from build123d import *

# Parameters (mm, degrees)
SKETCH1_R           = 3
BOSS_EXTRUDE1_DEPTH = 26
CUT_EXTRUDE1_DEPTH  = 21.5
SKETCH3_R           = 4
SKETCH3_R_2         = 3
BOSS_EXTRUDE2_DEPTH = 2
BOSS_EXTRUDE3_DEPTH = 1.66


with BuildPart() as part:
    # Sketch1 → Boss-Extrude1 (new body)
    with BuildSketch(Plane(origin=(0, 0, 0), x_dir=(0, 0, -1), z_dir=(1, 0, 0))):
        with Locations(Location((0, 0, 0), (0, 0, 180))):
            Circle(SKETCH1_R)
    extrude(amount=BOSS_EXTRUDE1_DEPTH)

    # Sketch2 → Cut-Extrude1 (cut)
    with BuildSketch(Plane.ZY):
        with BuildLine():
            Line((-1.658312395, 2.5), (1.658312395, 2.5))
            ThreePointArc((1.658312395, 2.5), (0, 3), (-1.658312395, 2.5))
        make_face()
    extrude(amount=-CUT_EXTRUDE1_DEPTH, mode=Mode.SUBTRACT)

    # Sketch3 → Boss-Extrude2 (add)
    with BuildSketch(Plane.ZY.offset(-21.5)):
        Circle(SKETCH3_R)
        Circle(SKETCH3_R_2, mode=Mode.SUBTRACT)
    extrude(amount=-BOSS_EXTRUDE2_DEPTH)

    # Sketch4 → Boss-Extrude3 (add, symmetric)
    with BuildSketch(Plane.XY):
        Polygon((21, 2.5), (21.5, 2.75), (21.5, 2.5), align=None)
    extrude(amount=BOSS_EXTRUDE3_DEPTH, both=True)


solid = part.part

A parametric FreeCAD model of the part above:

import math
import FreeCAD as App
import Part
import Sketcher

doc = App.newDocument("Part")
body = doc.addObject("PartDesign::Body", "Body")

# Sketch on YZ plane
sketch1 = body.newObject("Sketcher::SketchObject", "Sketch")
sketch1.AttachmentSupport = (doc.getObject("YZ_Plane"), [""])
sketch1.MapMode = "FlatFace"
sketch1.addGeometry(Part.Circle(App.Vector(0, 0, 0), App.Vector(0, 0, 1), 3), False)
sketch1.addConstraint([
    Sketcher.Constraint("Coincident", 0, 3, -1, 1),
    Sketcher.Constraint("Diameter", 0, 6.0),
])
pad1 = body.newObject("PartDesign::Pad", "Pad")
pad1.Profile = sketch1
pad1.Length = 26

# Sketch on YZ plane
sketch2 = body.newObject("Sketcher::SketchObject", "Sketch001")
sketch2.AttachmentSupport = (doc.getObject("YZ_Plane"), [""])
sketch2.MapMode = "FlatFace"
sketch2.addGeometry([
    Part.LineSegment(App.Vector(2.5, -1.658312, 0), App.Vector(2.5, 1.658312, 0)),
    Part.ArcOfCircle(Part.Circle(App.Vector(0, 0, 0), App.Vector(0, 0, 1), 3), math.radians(-33.55731), math.radians(33.55731)),
], False)
sketch2.addConstraint([
    Sketcher.Constraint("Coincident", 0, 1, 1, 1),
    Sketcher.Constraint("Coincident", 1, 2, 0, 2),
    Sketcher.Constraint("Vertical", 0),
    Sketcher.Constraint("Coincident", 1, 3, -1, 1),
    Sketcher.Constraint("Radius", 1, 3.0),
    Sketcher.Constraint("DistanceX", -1, 1, 0, 1, 2.5),
])
pocket1 = body.newObject("PartDesign::Pocket", "Pocket")
pocket1.Profile = sketch2
pocket1.Length = 21.5
pocket1.Reversed = True

# Sketch on YZ plane
sketch3 = body.newObject("Sketcher::SketchObject", "Sketch002")
sketch3.AttachmentSupport = (doc.getObject("YZ_Plane"), [""])
sketch3.MapMode = "FlatFace"
sketch3.AttachmentOffset = App.Placement(App.Vector(0, 0, 21.5), App.Rotation())
sketch3.addGeometry([
    Part.Circle(App.Vector(0, 0, 0), App.Vector(0, 0, 1), 4),
    Part.Circle(App.Vector(0, 0, 0), App.Vector(0, 0, 1), 3),
], False)
sketch3.addConstraint([
    Sketcher.Constraint("Coincident", 0, 3, -1, 1),
    Sketcher.Constraint("Coincident", 1, 3, -1, 1),
    Sketcher.Constraint("Diameter", 0, 8.0),
    Sketcher.Constraint("Diameter", 1, 6.0),
])
pad2 = body.newObject("PartDesign::Pad", "Pad001")
pad2.Profile = sketch3
pad2.Length = 2

# Sketch on XY plane
sketch4 = body.newObject("Sketcher::SketchObject", "Sketch003")
sketch4.AttachmentSupport = (doc.getObject("XY_Plane"), [""])
sketch4.MapMode = "FlatFace"
sketch4.addGeometry([
    Part.LineSegment(App.Vector(21.5, 2.75, 0), App.Vector(21, 2.5, 0)),
    Part.LineSegment(App.Vector(21, 2.5, 0), App.Vector(21.5, 2.5, 0)),
    Part.LineSegment(App.Vector(21.5, 2.5, 0), App.Vector(21.5, 2.75, 0)),
], False)
sketch4.addConstraint([
    Sketcher.Constraint("Coincident", 0, 2, 1, 1),
    Sketcher.Constraint("Coincident", 1, 2, 2, 1),
    Sketcher.Constraint("Coincident", 2, 2, 0, 1),
    Sketcher.Constraint("Horizontal", 1),
    Sketcher.Constraint("Vertical", 2),
    Sketcher.Constraint("DistanceX", 1, 1, 1, 2, 0.5),
    Sketcher.Constraint("DistanceX", -1, 1, 0, 2, 21.0),
    Sketcher.Constraint("DistanceY", 2, 1, 2, 2, 0.25),
    Sketcher.Constraint("DistanceY", -1, 1, 0, 2, 2.5),
])
pad3 = body.newObject("PartDesign::Pad", "Pad002")
pad3.Profile = sketch4
pad3.Length = 3.32
pad3.Midplane = True

doc.recompute()
